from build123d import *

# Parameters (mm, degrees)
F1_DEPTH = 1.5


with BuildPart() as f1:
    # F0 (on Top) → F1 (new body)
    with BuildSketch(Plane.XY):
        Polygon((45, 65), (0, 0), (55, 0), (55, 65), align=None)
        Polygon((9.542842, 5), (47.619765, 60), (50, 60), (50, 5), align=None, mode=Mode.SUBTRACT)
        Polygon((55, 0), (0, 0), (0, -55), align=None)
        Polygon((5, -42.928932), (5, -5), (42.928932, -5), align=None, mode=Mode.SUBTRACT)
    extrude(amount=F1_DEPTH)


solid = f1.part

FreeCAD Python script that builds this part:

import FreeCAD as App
import Part
import Sketcher


def add_polygon(sketch, points):
    """Adds a closed chain of lines whose ends are joined by coincident constraints."""
    first, n = sketch.GeometryCount, len(points)
    for a, b in zip(points, points[1:] + points[:1]):
        sketch.addGeometry(Part.LineSegment(App.Vector(*a, 0), App.Vector(*b, 0)), False)
    for i in range(n):
        sketch.addConstraint(Sketcher.Constraint("Coincident", first + i, 2, first + (i + 1) % n, 1))

doc = App.newDocument("Part")
body = doc.addObject("PartDesign::Body", "Body")

# Sketch on XY plane
sketch1 = doc.addObject("Sketcher::SketchObject", "Sketch")
body.addObject(sketch1)
sketch1.AttachmentSupport = (doc.XY_Plane, [""])
sketch1.MapMode = "FlatFace"
add_polygon(sketch1, [(45, 65), (0, 0), (0, -55), (55, 0), (55, 65)])  # lines 0-4
add_polygon(sketch1, [(42.928932, -5), (5, -42.928932), (5, -5)])  # lines 5-7
add_polygon(sketch1, [(50, 5), (9.542842, 5), (47.619765, 60), (50, 60)])  # lines 8-11
sketch1.addConstraint([
    Sketcher.Constraint("Vertical", 1),
    Sketcher.Constraint("Vertical", 3),
    Sketcher.Constraint("Horizontal", 4),
    Sketcher.Constraint("Vertical", 6),
    Sketcher.Constraint("Horizontal", 7),
    Sketcher.Constraint("Horizontal", 8),
    Sketcher.Constraint("Horizontal", 10),
    Sketcher.Constraint("Vertical", 11),
    Sketcher.Constraint("Coincident", 0, 2, -1, 1),
    Sketcher.Constraint("PointOnObject", 2, 2, -1),
    Sketcher.Constraint("Parallel", 2, 5),
    Sketcher.Constraint("Parallel", 0, 9),
    Sketcher.Constraint("Equal", 7, 6),
    Sketcher.Constraint("Equal", 1, 11),
    Sketcher.Constraint("DistanceX", 4, 2, 4, 1, 10.0),
    Sketcher.Constraint("DistanceY", 1, 2, 1, 1, 55.0),
    Sketcher.Constraint("DistanceY", 3, 1, 3, 2, 65.0),
    Sketcher.Constraint("DistanceX", -1, 1, 5, 2, 5.0),
    Sketcher.Constraint("DistanceY", 6, 2, -1, 1, 5.0),
    Sketcher.Constraint("DistanceY", -1, 1, 8, 2, 5.0),
    Sketcher.Constraint("DistanceX", -1, 1, 10, 2, 50.0),
    Sketcher.Constraint("Distance", 5, 53.63961),
    Sketcher.Constraint("DistanceX", 8, 2, 8, 1, 40.457158),
])
pad1 = doc.addObject("PartDesign::Pad", "Pad")
body.addObject(pad1)
pad1.Profile = sketch1
pad1.Length = 1.5

doc.recompute()
